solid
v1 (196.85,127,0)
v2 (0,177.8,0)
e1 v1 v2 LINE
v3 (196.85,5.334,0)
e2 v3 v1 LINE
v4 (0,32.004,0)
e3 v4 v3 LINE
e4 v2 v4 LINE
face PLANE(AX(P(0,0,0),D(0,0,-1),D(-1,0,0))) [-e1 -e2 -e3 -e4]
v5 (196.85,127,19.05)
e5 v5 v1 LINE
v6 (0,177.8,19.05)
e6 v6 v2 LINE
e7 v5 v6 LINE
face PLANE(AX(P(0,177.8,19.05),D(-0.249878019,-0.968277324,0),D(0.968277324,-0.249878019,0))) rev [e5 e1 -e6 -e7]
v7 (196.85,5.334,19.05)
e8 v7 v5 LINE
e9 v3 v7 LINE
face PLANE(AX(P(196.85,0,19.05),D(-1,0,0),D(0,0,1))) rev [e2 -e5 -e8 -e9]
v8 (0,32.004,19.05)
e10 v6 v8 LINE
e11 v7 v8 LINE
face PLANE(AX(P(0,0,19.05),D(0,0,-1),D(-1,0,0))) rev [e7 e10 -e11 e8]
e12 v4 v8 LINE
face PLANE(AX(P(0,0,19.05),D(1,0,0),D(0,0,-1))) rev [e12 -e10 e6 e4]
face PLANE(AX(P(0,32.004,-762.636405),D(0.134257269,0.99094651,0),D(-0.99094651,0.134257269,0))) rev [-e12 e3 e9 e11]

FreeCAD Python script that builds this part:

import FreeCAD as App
import Part
import Sketcher
Q = App.Units.Quantity

doc = App.newDocument("Part")
body = doc.addObject("PartDesign::Body", "Body")

# Sketch on XY plane
sketch1 = doc.addObject("Sketcher::SketchObject", "Sketch")
body.addObject(sketch1)
sketch1.AttachmentSupport = (doc.XY_Plane, [""])
sketch1.MapMode = "FlatFace"
sketch1.addGeometry([
    Part.LineSegment(App.Vector(0, 0, 0), App.Vector(196.85, 0, 0)),
    Part.LineSegment(App.Vector(196.85, 0, 0), App.Vector(196.85, 127, 0)),
    Part.LineSegment(App.Vector(196.85, 127, 0), App.Vector(0, 177.8, 0)),
    Part.LineSegment(App.Vector(0, 177.8, 0), App.Vector(0, 0, 0)),
], False)
sketch1.addConstraint([
    Sketcher.Constraint("Coincident", 0, 2, 1, 1),
    Sketcher.Constraint("Coincident", 1, 2, 2, 1),
    Sketcher.Constraint("Coincident", 2, 2, 3, 1),
    Sketcher.Constraint("Coincident", 3, 2, 0, 1),
    Sketcher.Constraint("Horizontal", 0),
    Sketcher.Constraint("Vertical", 1),
    Sketcher.Constraint("Vertical", 3),
    Sketcher.Constraint("Coincident", 3, 2, -1, 1),
    Sketcher.Constraint("DistanceY", 1, 1, 1, 2, Q("5 in")),
    Sketcher.Constraint("DistanceY", 3, 2, 3, 1, Q("7 in")),
    Sketcher.Constraint("DistanceX", 0, 1, 0, 2, Q("7.75 in")),
])
pad1 = doc.addObject("PartDesign::Pad", "Pad")
body.addObject(pad1)
pad1.Profile = sketch1
pad1.Length = Q("0.75 in")

# Sketch on XY plane
sketch2 = doc.addObject("Sketcher::SketchObject", "Sketch001")
body.addObject(sketch2)
sketch2.AttachmentSupport = (doc.XY_Plane, [""])
sketch2.MapMode = "FlatFace"
sketch2.AttachmentOffset = App.Placement(App.Vector(0, 0, 0.75 * 25.4), App.Rotation())
sketch2.addGeometry([
    Part.LineSegment(App.Vector(0, 32.004, 0), App.Vector(0, 0, 0)),
    Part.LineSegment(App.Vector(0, 0, 0), App.Vector(196.85, 0, 0)),
    Part.LineSegment(App.Vector(196.85, 0, 0), App.Vector(196.85, 5.334, 0)),
    Part.LineSegment(App.Vector(196.85, 5.334, 0), App.Vector(0, 32.004, 0)),
], False)
sketch2.addConstraint([
    Sketcher.Constraint("Coincident", 0, 2, 1, 1),
    Sketcher.Constraint("Coincident", 1, 2, 2, 1),
    Sketcher.Constraint("Coincident", 2, 2, 3, 1),
    Sketcher.Constraint("Coincident", 3, 2, 0, 1),
    Sketcher.Constraint("Vertical", 0),
    Sketcher.Constraint("Horizontal", 1),
    Sketcher.Constraint("Vertical", 2),
    Sketcher.Constraint("Coincident", 0, 2, -1, 1),
    Sketcher.Constraint("DistanceX", 1, 1, 1, 2, Q("7.75 in")),
    Sketcher.Constraint("DistanceY", 0, 2, 0, 1, Q("1.26 in")),
    Sketcher.Constraint("DistanceY", 2, 1, 2, 2, Q("0.21 in")),
])
pocket1 = doc.addObject("PartDesign::Pocket", "Pocket")
body.addObject(pocket1)
pocket1.Profile = sketch2
pocket1.Length = 781.686405

doc.recompute()
